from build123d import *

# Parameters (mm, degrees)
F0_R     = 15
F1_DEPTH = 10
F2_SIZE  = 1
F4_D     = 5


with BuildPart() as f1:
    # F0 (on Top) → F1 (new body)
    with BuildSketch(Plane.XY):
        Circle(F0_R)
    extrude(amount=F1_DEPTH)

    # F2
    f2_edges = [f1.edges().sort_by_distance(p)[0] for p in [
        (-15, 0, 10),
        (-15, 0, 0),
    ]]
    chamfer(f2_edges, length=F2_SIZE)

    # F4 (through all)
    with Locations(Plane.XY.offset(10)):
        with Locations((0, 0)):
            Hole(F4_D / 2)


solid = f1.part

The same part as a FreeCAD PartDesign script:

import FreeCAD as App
import Part
import Sketcher

V = App.Vector


def edges_at(feature, points):
    """Names of the edges that pass closest to the given points."""
    edges = feature.Shape.Edges
    near = lambda p: min(range(len(edges)), key=lambda i: edges[i].distToShape(Part.Vertex(*p))[0])
    return sorted({f"Edge{near(p) + 1}" for p in points})

doc = App.newDocument("Part")
body = doc.addObject("PartDesign::Body", "Body")

# Sketch on XY plane
sketch1 = body.newObject("Sketcher::SketchObject", "Sketch")
sketch1.AttachmentSupport = (doc.getObject("XY_Plane"), [""])
sketch1.MapMode = "FlatFace"
sketch1.addGeometry(Part.Circle(V(0, 0, 0), V(0, 0, 1), 15), False)
sketch1.addConstraint([
    Sketcher.Constraint("Coincident", 0, 3, -1, 1),
    Sketcher.Constraint("Diameter", 0, 30.0),
])
pad1 = body.newObject("PartDesign::Pad", "Pad")
pad1.Profile = sketch1
pad1.Length = 10
doc.recompute()

chamfer = body.newObject("PartDesign::Chamfer", "Chamfer")
chamfer.Base = (pad1, edges_at(pad1, [(-15, 0, 10), (-15, 0, 0)]))
chamfer.Size = 1

# Sketch on XY plane
sketch2 = body.newObject("Sketcher::SketchObject", "Sketch001")
sketch2.AttachmentSupport = (doc.getObject("XY_Plane"), [""])
sketch2.MapMode = "FlatFace"
sketch2.AttachmentOffset = App.Placement(V(0, 0, 10), App.Rotation())
sketch2.addGeometry(Part.Circle(V(0, 0, 0), V(0, 0, 1), 2.5), False)
sketch2.addConstraint([
    Sketcher.Constraint("Coincident", 0, 3, -1, 1),
    Sketcher.Constraint("Diameter", 0, 5.0),
])
doc.recompute()
hole = body.newObject("PartDesign::Hole", "Hole")
hole.Profile = sketch2
hole.ThreadType = "None"
hole.Diameter = 5
hole.DepthType = "ThroughAll"

doc.recompute()
